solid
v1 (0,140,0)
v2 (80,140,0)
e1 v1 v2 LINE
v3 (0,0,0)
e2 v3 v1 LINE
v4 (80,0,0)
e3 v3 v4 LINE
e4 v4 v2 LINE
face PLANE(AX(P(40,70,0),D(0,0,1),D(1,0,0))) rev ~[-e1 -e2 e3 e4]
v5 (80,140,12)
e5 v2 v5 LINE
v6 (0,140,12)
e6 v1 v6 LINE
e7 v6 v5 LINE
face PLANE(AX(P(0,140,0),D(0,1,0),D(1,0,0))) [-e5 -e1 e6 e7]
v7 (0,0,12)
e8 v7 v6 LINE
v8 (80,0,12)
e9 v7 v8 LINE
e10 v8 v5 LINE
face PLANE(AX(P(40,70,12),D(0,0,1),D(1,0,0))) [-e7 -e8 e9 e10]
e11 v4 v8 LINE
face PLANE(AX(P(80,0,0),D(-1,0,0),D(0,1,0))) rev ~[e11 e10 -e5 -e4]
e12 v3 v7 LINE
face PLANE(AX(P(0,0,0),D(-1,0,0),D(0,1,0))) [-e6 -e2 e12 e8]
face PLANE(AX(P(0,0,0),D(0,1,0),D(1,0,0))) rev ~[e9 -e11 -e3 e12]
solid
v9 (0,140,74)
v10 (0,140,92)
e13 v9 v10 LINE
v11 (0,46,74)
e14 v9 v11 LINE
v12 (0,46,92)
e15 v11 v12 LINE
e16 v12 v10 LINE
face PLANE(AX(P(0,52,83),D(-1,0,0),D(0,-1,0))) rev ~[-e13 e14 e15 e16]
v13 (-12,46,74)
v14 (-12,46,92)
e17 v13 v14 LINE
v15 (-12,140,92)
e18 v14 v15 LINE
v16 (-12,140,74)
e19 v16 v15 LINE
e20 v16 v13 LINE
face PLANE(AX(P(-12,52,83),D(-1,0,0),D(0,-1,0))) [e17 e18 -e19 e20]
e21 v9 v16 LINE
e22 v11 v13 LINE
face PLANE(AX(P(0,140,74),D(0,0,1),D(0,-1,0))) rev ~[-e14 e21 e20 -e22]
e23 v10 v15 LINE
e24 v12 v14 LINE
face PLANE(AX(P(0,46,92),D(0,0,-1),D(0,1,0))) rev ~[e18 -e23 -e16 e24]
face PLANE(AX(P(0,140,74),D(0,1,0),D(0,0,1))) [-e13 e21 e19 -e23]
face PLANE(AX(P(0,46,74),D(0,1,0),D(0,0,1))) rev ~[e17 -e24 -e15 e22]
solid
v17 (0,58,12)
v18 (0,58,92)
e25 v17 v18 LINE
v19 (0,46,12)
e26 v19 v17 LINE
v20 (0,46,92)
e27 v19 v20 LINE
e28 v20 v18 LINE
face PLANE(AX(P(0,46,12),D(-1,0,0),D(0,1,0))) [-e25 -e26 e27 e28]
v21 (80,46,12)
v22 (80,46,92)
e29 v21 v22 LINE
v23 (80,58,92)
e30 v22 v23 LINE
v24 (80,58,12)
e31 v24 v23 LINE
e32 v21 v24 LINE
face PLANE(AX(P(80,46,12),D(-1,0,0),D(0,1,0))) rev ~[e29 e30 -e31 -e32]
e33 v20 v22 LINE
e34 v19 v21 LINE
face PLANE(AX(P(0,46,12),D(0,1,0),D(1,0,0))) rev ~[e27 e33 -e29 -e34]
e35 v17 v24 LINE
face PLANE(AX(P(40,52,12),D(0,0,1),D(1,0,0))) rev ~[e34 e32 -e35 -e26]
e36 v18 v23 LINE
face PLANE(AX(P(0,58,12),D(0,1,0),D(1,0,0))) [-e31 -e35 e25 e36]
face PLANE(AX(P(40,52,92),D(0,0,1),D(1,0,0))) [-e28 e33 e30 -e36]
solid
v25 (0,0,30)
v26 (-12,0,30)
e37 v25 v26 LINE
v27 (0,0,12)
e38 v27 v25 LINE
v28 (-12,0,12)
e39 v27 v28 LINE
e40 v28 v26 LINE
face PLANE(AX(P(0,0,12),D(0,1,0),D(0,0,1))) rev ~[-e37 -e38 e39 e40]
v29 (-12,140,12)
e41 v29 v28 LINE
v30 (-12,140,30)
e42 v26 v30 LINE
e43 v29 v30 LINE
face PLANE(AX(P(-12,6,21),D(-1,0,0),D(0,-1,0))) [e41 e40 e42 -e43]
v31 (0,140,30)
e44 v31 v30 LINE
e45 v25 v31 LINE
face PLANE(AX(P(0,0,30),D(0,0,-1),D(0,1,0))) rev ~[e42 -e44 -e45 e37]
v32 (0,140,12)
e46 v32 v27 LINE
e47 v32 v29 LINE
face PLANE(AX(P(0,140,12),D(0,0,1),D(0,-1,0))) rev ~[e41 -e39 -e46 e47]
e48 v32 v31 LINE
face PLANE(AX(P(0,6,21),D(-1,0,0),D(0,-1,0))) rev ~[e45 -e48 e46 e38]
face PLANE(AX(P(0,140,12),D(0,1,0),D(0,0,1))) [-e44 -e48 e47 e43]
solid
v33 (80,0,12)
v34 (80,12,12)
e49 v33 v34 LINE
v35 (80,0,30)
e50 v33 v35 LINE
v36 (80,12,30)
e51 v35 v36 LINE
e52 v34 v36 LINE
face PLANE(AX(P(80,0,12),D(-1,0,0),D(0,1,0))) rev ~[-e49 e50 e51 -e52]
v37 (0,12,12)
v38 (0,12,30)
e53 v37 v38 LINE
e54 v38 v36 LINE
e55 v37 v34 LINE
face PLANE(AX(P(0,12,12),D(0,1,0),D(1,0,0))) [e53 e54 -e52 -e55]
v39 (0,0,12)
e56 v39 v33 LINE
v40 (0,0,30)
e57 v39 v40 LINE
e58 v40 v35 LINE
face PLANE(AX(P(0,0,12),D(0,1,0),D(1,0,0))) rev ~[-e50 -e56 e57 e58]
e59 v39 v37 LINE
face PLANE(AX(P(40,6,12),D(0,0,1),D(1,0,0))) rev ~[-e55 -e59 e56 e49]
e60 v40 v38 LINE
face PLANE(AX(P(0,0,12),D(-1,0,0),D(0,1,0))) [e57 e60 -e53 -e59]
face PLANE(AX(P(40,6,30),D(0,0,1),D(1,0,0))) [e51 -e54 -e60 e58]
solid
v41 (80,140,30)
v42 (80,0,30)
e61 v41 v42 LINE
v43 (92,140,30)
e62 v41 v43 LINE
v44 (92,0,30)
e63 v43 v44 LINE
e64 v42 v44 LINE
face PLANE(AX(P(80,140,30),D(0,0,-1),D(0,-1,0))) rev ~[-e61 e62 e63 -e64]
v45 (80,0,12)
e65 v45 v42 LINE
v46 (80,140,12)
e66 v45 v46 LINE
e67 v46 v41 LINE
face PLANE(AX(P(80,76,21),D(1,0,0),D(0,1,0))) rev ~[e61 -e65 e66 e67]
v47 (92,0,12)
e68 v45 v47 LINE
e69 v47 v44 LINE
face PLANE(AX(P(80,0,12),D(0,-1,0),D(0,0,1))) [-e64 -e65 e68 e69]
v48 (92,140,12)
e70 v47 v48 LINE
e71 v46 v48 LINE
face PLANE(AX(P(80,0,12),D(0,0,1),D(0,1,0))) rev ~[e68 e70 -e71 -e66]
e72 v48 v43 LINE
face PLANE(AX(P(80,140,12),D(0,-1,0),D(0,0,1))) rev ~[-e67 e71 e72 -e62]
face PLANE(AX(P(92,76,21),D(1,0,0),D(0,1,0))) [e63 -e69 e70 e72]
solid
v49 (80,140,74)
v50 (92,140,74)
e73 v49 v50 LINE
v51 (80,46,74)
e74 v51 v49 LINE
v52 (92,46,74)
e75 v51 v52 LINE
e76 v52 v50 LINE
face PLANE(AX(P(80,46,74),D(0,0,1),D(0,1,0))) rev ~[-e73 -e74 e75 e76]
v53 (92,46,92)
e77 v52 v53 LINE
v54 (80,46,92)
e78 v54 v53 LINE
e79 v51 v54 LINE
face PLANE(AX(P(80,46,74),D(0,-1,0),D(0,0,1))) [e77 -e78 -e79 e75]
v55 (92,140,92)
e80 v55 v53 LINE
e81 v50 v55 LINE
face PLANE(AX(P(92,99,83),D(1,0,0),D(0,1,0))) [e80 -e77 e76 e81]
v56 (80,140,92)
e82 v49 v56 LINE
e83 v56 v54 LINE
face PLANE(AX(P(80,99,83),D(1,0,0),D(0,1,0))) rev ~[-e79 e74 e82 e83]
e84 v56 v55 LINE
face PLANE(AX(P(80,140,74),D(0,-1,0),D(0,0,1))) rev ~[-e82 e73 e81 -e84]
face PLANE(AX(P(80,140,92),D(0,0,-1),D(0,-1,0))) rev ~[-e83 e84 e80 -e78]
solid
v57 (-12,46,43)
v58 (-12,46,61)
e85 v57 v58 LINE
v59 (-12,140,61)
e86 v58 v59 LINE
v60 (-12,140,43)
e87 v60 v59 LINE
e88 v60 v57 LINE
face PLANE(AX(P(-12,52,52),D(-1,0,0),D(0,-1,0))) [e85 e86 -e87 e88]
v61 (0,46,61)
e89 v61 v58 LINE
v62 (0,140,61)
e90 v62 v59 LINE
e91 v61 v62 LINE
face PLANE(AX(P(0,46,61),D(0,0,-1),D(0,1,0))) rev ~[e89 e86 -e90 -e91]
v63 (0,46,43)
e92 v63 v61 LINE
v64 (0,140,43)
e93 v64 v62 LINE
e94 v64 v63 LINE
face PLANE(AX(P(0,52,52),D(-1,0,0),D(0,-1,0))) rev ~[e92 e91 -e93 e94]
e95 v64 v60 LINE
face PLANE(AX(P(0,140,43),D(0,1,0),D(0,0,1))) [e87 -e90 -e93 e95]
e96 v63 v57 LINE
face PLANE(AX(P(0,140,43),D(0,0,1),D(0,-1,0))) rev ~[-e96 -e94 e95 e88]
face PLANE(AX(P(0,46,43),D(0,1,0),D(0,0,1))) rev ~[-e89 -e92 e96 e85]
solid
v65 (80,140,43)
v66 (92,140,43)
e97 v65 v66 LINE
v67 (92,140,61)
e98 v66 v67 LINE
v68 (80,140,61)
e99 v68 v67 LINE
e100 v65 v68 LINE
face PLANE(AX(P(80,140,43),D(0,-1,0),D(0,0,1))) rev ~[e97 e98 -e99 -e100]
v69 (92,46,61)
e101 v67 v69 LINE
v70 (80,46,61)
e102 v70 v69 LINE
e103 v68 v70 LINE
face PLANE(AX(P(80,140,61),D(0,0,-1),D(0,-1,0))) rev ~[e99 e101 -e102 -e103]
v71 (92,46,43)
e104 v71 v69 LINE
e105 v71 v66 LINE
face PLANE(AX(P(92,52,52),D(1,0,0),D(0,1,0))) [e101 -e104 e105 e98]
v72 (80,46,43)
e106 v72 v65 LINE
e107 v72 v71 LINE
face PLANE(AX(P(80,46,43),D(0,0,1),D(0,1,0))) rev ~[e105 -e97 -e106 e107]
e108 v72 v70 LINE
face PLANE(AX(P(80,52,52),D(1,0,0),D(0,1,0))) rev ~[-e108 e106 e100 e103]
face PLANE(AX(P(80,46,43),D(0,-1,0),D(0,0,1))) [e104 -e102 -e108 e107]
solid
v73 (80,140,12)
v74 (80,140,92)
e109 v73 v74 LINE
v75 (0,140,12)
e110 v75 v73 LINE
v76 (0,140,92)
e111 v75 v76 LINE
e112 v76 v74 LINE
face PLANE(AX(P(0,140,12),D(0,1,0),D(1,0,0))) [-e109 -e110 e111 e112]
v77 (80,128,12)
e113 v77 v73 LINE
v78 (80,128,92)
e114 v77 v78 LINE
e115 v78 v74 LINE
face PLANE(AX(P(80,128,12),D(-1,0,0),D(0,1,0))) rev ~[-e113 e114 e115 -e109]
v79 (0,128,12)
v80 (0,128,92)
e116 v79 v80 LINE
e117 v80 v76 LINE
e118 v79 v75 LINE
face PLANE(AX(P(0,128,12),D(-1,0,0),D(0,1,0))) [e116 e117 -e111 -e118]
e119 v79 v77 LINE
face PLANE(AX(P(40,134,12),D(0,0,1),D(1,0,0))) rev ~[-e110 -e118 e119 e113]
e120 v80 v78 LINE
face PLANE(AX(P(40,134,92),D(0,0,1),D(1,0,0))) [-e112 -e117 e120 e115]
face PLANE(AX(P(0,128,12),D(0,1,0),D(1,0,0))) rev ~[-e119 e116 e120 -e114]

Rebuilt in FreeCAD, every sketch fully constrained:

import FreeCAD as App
import Part
import Sketcher

V = App.Vector

doc = App.newDocument("Part")
body = doc.addObject("PartDesign::Body", "Body")

sketch1 = body.newObject("Sketcher::SketchObject", "Sketch")
sketch1.AttachmentSupport = (doc.getObject("XY_Plane"), [""])
sketch1.MapMode = "FlatFace"
sketch1.addGeometry(Part.LineSegment(V(0, 140, 0), V(0, 0, 0)), False)
sketch1.addGeometry(Part.LineSegment(V(0, 0, 0), V(80, 0, 0)), False)
sketch1.addGeometry(Part.LineSegment(V(80, 0, 0), V(80, 140, 0)), False)
sketch1.addGeometry(Part.LineSegment(V(80, 140, 0), V(0, 140, 0)), False)
sketch1.addConstraint(Sketcher.Constraint("Coincident", 0, 2, 1, 1))
sketch1.addConstraint(Sketcher.Constraint("Coincident", 1, 2, 2, 1))
sketch1.addConstraint(Sketcher.Constraint("Coincident", 2, 2, 3, 1))
sketch1.addConstraint(Sketcher.Constraint("Coincident", 3, 2, 0, 1))
sketch1.addConstraint(Sketcher.Constraint("Vertical", 0))
sketch1.addConstraint(Sketcher.Constraint("Horizontal", 1))
sketch1.addConstraint(Sketcher.Constraint("Vertical", 2))
sketch1.addConstraint(Sketcher.Constraint("Horizontal", 3))
sketch1.addConstraint(Sketcher.Constraint("Coincident", 0, 2, -1, 1))
sketch1.addConstraint(Sketcher.Constraint("DistanceX", 1, 1, 1, 2, 80.0))
sketch1.addConstraint(Sketcher.Constraint("DistanceY", 0, 2, 0, 1, 140.0))
pad1 = body.newObject("PartDesign::Pad", "Pad")
pad1.Profile = sketch1
pad1.Length = 12
body2 = doc.addObject("PartDesign::Body", "Body001")
body2.AllowCompound = True

sketch2 = body2.newObject("Sketcher::SketchObject", "Sketch001")
sketch2.AttachmentSupport = (doc.getObject("XY_Plane001"), [""])
sketch2.MapMode = "FlatFace"
sketch2.AttachmentOffset = App.Placement(V(0, 0, 12), App.Rotation())
sketch2.addGeometry(Part.LineSegment(V(0, 140, 0), V(0, 128, 0)), False)
sketch2.addGeometry(Part.LineSegment(V(0, 128, 0), V(80, 128, 0)), False)
sketch2.addGeometry(Part.LineSegment(V(80, 128, 0), V(80, 140, 0)), False)
sketch2.addGeometry(Part.LineSegment(V(80, 140, 0), V(0, 140, 0)), False)
sketch2.addGeometry(Part.LineSegment(V(0, 58, 0), V(0, 46, 0)), False)
sketch2.addGeometry(Part.LineSegment(V(0, 46, 0), V(80, 46, 0)), False)
sketch2.addGeometry(Part.LineSegment(V(80, 46, 0), V(80, 58, 0)), False)
sketch2.addGeometry(Part.LineSegment(V(80, 58, 0), V(0, 58, 0)), False)
sketch2.addConstraint(Sketcher.Constraint("Coincident", 0, 2, 1, 1))
sketch2.addConstraint(Sketcher.Constraint("Coincident", 1, 2, 2, 1))
sketch2.addConstraint(Sketcher.Constraint("Coincident", 2, 2, 3, 1))
sketch2.addConstraint(Sketcher.Constraint("Coincident", 3, 2, 0, 1))
sketch2.addConstraint(Sketcher.Constraint("Coincident", 4, 2, 5, 1))
sketch2.addConstraint(Sketcher.Constraint("Coincident", 5, 2, 6, 1))
sketch2.addConstraint(Sketcher.Constraint("Coincident", 6, 2, 7, 1))
sketch2.addConstraint(Sketcher.Constraint("Coincident", 7, 2, 4, 1))
sketch2.addConstraint(Sketcher.Constraint("Vertical", 0))
sketch2.addConstraint(Sketcher.Constraint("Horizontal", 1))
sketch2.addConstraint(Sketcher.Constraint("Vertical", 2))
sketch2.addConstraint(Sketcher.Constraint("Horizontal", 3))
sketch2.addConstraint(Sketcher.Constraint("Vertical", 4))
sketch2.addConstraint(Sketcher.Constraint("Horizontal", 5))
sketch2.addConstraint(Sketcher.Constraint("Vertical", 6))
sketch2.addConstraint(Sketcher.Constraint("Horizontal", 7))
sketch2.addConstraint(Sketcher.Constraint("PointOnObject", 0, 2, -2))
sketch2.addConstraint(Sketcher.Constraint("PointOnObject", 4, 2, -2))
sketch2.addConstraint(Sketcher.Constraint("Vertical", 2, 2, 5, 2))
sketch2.addConstraint(Sketcher.Constraint("Equal", 2, 4))
sketch2.addConstraint(Sketcher.Constraint("DistanceX", 1, 1, 1, 2, 80.0))
sketch2.addConstraint(Sketcher.Constraint("DistanceY", 0, 2, 0, 1, 12.0))
sketch2.addConstraint(Sketcher.Constraint("DistanceY", -1, 1, 0, 2, 128.0))
sketch2.addConstraint(Sketcher.Constraint("DistanceY", -1, 1, 4, 2, 46.0))
pad2 = body2.newObject("PartDesign::Pad", "Pad001")
pad2.Profile = sketch2
pad2.Length = 80
body3 = doc.addObject("PartDesign::Body", "Body002")

sketch3 = body3.newObject("Sketcher::SketchObject", "Sketch002")
sketch3.AttachmentSupport = (doc.getObject("XY_Plane002"), [""])
sketch3.MapMode = "FlatFace"
sketch3.AttachmentOffset = App.Placement(V(0, 0, 12), App.Rotation())
sketch3.addGeometry(Part.LineSegment(V(0, 12, 0), V(0, 0, 0)), False)
sketch3.addGeometry(Part.LineSegment(V(0, 0, 0), V(80, 0, 0)), False)
sketch3.addGeometry(Part.LineSegment(V(80, 0, 0), V(80, 12, 0)), False)
sketch3.addGeometry(Part.LineSegment(V(80, 12, 0), V(0, 12, 0)), False)
sketch3.addConstraint(Sketcher.Constraint("Coincident", 0, 2, 1, 1))
sketch3.addConstraint(Sketcher.Constraint("Coincident", 1, 2, 2, 1))
sketch3.addConstraint(Sketcher.Constraint("Coincident", 2, 2, 3, 1))
sketch3.addConstraint(Sketcher.Constraint("Coincident", 3, 2, 0, 1))
sketch3.addConstraint(Sketcher.Constraint("Vertical", 0))
sketch3.addConstraint(Sketcher.Constraint("Horizontal", 1))
sketch3.addConstraint(Sketcher.Constraint("Vertical", 2))
sketch3.addConstraint(Sketcher.Constraint("Horizontal", 3))
sketch3.addConstraint(Sketcher.Constraint("Coincident", 0, 2, -1, 1))
sketch3.addConstraint(Sketcher.Constraint("DistanceX", 1, 1, 1, 2, 80.0))
sketch3.addConstraint(Sketcher.Constraint("DistanceY", 0, 2, 0, 1, 12.0))
pad3 = body3.newObject("PartDesign::Pad", "Pad002")
pad3.Profile = sketch3
pad3.Length = 18
body4 = doc.addObject("PartDesign::Body", "Body003")

sketch4 = body4.newObject("Sketcher::SketchObject", "Sketch003")
sketch4.AttachmentSupport = (doc.getObject("YZ_Plane003"), [""])
sketch4.MapMode = "FlatFace"
sketch4.AttachmentOffset = App.Placement(V(0, 0, 80), App.Rotation())
sketch4.addGeometry(Part.LineSegment(V(140, 12, 0), V(140, 30, 0)), False)
sketch4.addGeometry(Part.LineSegment(V(140, 30, 0), V(0, 30, 0)), False)
sketch4.addGeometry(Part.LineSegment(V(0, 30, 0), V(0, 12, 0)), False)
sketch4.addGeometry(Part.LineSegment(V(0, 12, 0), V(140, 12, 0)), False)
sketch4.addConstraint(Sketcher.Constraint("Coincident", 0, 2, 1, 1))
sketch4.addConstraint(Sketcher.Constraint("Coincident", 1, 2, 2, 1))
sketch4.addConstraint(Sketcher.Constraint("Coincident", 2, 2, 3, 1))
sketch4.addConstraint(Sketcher.Constraint("Coincident", 3, 2, 0, 1))
sketch4.addConstraint(Sketcher.Constraint("Vertical", 0))
sketch4.addConstraint(Sketcher.Constraint("Horizontal", 1))
sketch4.addConstraint(Sketcher.Constraint("Vertical", 2))
sketch4.addConstraint(Sketcher.Constraint("Horizontal", 3))
sketch4.addConstraint(Sketcher.Constraint("PointOnObject", 1, 2, -2))
sketch4.addConstraint(Sketcher.Constraint("DistanceX", 1, 2, 1, 1, 140.0))
sketch4.addConstraint(Sketcher.Constraint("DistanceY", 0, 1, 0, 2, 18.0))
sketch4.addConstraint(Sketcher.Constraint("DistanceY", -1, 1, 0, 2, 30.0))
pad4 = body4.newObject("PartDesign::Pad", "Pad003")
pad4.Profile = sketch4
pad4.Length = 12
body5 = doc.addObject("PartDesign::Body", "Body004")
body5.AllowCompound = True

sketch5 = body5.newObject("Sketcher::SketchObject", "Sketch004")
sketch5.AttachmentSupport = (doc.getObject("YZ_Plane004"), [""])
sketch5.MapMode = "FlatFace"
sketch5.AttachmentOffset = App.Placement(V(0, 0, 80), App.Rotation())
sketch5.addGeometry(Part.LineSegment(V(140, 74, 0), V(140, 92, 0)), False)
sketch5.addGeometry(Part.LineSegment(V(140, 92, 0), V(46, 92, 0)), False)
sketch5.addGeometry(Part.LineSegment(V(46, 92, 0), V(46, 74, 0)), False)
sketch5.addGeometry(Part.LineSegment(V(46, 74, 0), V(140, 74, 0)), False)
sketch5.addGeometry(Part.LineSegment(V(46, 61, 0), V(46, 43, 0)), False)
sketch5.addGeometry(Part.LineSegment(V(46, 43, 0), V(140, 43, 0)), False)
sketch5.addGeometry(Part.LineSegment(V(140, 43, 0), V(140, 61, 0)), False)
sketch5.addGeometry(Part.LineSegment(V(140, 61, 0), V(46, 61, 0)), False)
sketch5.addConstraint(Sketcher.Constraint("Coincident", 0, 2, 1, 1))
sketch5.addConstraint(Sketcher.Constraint("Coincident", 1, 2, 2, 1))
sketch5.addConstraint(Sketcher.Constraint("Coincident", 2, 2, 3, 1))
sketch5.addConstraint(Sketcher.Constraint("Coincident", 3, 2, 0, 1))
sketch5.addConstraint(Sketcher.Constraint("Coincident", 4, 2, 5, 1))
sketch5.addConstraint(Sketcher.Constraint("Coincident", 5, 2, 6, 1))
sketch5.addConstraint(Sketcher.Constraint("Coincident", 6, 2, 7, 1))
sketch5.addConstraint(Sketcher.Constraint("Coincident", 7, 2, 4, 1))
sketch5.addConstraint(Sketcher.Constraint("Vertical", 0))
sketch5.addConstraint(Sketcher.Constraint("Horizontal", 1))
sketch5.addConstraint(Sketcher.Constraint("Vertical", 2))
sketch5.addConstraint(Sketcher.Constraint("Horizontal", 3))
sketch5.addConstraint(Sketcher.Constraint("Vertical", 4))
sketch5.addConstraint(Sketcher.Constraint("Horizontal", 5))
sketch5.addConstraint(Sketcher.Constraint("Vertical", 6))
sketch5.addConstraint(Sketcher.Constraint("Horizontal", 7))
sketch5.addConstraint(Sketcher.Constraint("Vertical", 2, 2, 4, 2))
sketch5.addConstraint(Sketcher.Constraint("Vertical", 3, 2, 5, 2))
sketch5.addConstraint(Sketcher.Constraint("Equal", 2, 4))
sketch5.addConstraint(Sketcher.Constraint("DistanceX", 1, 2, 1, 1, 94.0))
sketch5.addConstraint(Sketcher.Constraint("DistanceY", 0, 1, 0, 2, 18.0))
sketch5.addConstraint(Sketcher.Constraint("DistanceX", -1, 1, 0, 2, 140.0))
sketch5.addConstraint(Sketcher.Constraint("DistanceY", -1, 1, 0, 2, 92.0))
sketch5.addConstraint(Sketcher.Constraint("DistanceY", -1, 1, 4, 2, 43.0))
pad5 = body5.newObject("PartDesign::Pad", "Pad004")
pad5.Profile = sketch5
pad5.Length = 12
body6 = doc.addObject("PartDesign::Body", "Body005")
body6.AllowCompound = True

sketch6 = body6.newObject("Sketcher::SketchObject", "Sketch005")
sketch6.AttachmentSupport = (doc.getObject("YZ_Plane005"), [""])
sketch6.MapMode = "FlatFace"
sketch6.addGeometry(Part.LineSegment(V(46, 74, 0), V(46, 92, 0)), False)
sketch6.addGeometry(Part.LineSegment(V(46, 92, 0), V(140, 92, 0)), False)
sketch6.addGeometry(Part.LineSegment(V(140, 92, 0), V(140, 74, 0)), False)
sketch6.addGeometry(Part.LineSegment(V(140, 74, 0), V(46, 74, 0)), False)
sketch6.addGeometry(Part.LineSegment(V(46, 43, 0), V(46, 61, 0)), False)
sketch6.addGeometry(Part.LineSegment(V(46, 61, 0), V(140, 61, 0)), False)
sketch6.addGeometry(Part.LineSegment(V(140, 61, 0), V(140, 43, 0)), False)
sketch6.addGeometry(Part.LineSegment(V(140, 43, 0), V(46, 43, 0)), False)
sketch6.addGeometry(Part.LineSegment(V(0, 12, 0), V(0, 30, 0)), False)
sketch6.addGeometry(Part.LineSegment(V(0, 30, 0), V(140, 30, 0)), False)
sketch6.addGeometry(Part.LineSegment(V(140, 30, 0), V(140, 12, 0)), False)
sketch6.addGeometry(Part.LineSegment(V(140, 12, 0), V(0, 12, 0)), False)
sketch6.addConstraint(Sketcher.Constraint("Coincident", 0, 2, 1, 1))
sketch6.addConstraint(Sketcher.Constraint("Coincident", 1, 2, 2, 1))
sketch6.addConstraint(Sketcher.Constraint("Coincident", 2, 2, 3, 1))
sketch6.addConstraint(Sketcher.Constraint("Coincident", 3, 2, 0, 1))
sketch6.addConstraint(Sketcher.Constraint("Coincident", 4, 2, 5, 1))
sketch6.addConstraint(Sketcher.Constraint("Coincident", 5, 2, 6, 1))
sketch6.addConstraint(Sketcher.Constraint("Coincident", 6, 2, 7, 1))
sketch6.addConstraint(Sketcher.Constraint("Coincident", 7, 2, 4, 1))
sketch6.addConstraint(Sketcher.Constraint("Coincident", 8, 2, 9, 1))
sketch6.addConstraint(Sketcher.Constraint("Coincident", 9, 2, 10, 1))
sketch6.addConstraint(Sketcher.Constraint("Coincident", 10, 2, 11, 1))
sketch6.addConstraint(Sketcher.Constraint("Coincident", 11, 2, 8, 1))
sketch6.addConstraint(Sketcher.Constraint("Vertical", 0))
sketch6.addConstraint(Sketcher.Constraint("Horizontal", 1))
sketch6.addConstraint(Sketcher.Constraint("Vertical", 2))
sketch6.addConstraint(Sketcher.Constraint("Horizontal", 3))
sketch6.addConstraint(Sketcher.Constraint("Vertical", 4))
sketch6.addConstraint(Sketcher.Constraint("Horizontal", 5))
sketch6.addConstraint(Sketcher.Constraint("Vertical", 6))
sketch6.addConstraint(Sketcher.Constraint("Horizontal", 7))
sketch6.addConstraint(Sketcher.Constraint("Vertical", 8))
sketch6.addConstraint(Sketcher.Constraint("Horizontal", 9))
sketch6.addConstraint(Sketcher.Constraint("Vertical", 10))
sketch6.addConstraint(Sketcher.Constraint("Horizontal", 11))
sketch6.addConstraint(Sketcher.Constraint("PointOnObject", 8, 2, -2))
sketch6.addConstraint(Sketcher.Constraint("Vertical", 3, 2, 4, 2))
sketch6.addConstraint(Sketcher.Constraint("Vertical", 2, 2, 5, 2))
sketch6.addConstraint(Sketcher.Constraint("Vertical", 6, 2, 9, 2))
sketch6.addConstraint(Sketcher.Constraint("Equal", 2, 4))
sketch6.addConstraint(Sketcher.Constraint("Equal", 6, 8))
sketch6.addConstraint(Sketcher.Constraint("DistanceX", 1, 1, 1, 2, 94.0))
sketch6.addConstraint(Sketcher.Constraint("DistanceX", 9, 1, 9, 2, 140.0))
sketch6.addConstraint(Sketcher.Constraint("DistanceY", 0, 1, 0, 2, 18.0))
sketch6.addConstraint(Sketcher.Constraint("DistanceY", -1, 1, 0, 2, 92.0))
sketch6.addConstraint(Sketcher.Constraint("DistanceY", -1, 1, 4, 2, 61.0))
sketch6.addConstraint(Sketcher.Constraint("DistanceY", -1, 1, 8, 2, 30.0))
pad6 = body6.newObject("PartDesign::Pad", "Pad005")
pad6.Profile = sketch6
pad6.Length = 12
pad6.Reversed = True

doc.recompute()
